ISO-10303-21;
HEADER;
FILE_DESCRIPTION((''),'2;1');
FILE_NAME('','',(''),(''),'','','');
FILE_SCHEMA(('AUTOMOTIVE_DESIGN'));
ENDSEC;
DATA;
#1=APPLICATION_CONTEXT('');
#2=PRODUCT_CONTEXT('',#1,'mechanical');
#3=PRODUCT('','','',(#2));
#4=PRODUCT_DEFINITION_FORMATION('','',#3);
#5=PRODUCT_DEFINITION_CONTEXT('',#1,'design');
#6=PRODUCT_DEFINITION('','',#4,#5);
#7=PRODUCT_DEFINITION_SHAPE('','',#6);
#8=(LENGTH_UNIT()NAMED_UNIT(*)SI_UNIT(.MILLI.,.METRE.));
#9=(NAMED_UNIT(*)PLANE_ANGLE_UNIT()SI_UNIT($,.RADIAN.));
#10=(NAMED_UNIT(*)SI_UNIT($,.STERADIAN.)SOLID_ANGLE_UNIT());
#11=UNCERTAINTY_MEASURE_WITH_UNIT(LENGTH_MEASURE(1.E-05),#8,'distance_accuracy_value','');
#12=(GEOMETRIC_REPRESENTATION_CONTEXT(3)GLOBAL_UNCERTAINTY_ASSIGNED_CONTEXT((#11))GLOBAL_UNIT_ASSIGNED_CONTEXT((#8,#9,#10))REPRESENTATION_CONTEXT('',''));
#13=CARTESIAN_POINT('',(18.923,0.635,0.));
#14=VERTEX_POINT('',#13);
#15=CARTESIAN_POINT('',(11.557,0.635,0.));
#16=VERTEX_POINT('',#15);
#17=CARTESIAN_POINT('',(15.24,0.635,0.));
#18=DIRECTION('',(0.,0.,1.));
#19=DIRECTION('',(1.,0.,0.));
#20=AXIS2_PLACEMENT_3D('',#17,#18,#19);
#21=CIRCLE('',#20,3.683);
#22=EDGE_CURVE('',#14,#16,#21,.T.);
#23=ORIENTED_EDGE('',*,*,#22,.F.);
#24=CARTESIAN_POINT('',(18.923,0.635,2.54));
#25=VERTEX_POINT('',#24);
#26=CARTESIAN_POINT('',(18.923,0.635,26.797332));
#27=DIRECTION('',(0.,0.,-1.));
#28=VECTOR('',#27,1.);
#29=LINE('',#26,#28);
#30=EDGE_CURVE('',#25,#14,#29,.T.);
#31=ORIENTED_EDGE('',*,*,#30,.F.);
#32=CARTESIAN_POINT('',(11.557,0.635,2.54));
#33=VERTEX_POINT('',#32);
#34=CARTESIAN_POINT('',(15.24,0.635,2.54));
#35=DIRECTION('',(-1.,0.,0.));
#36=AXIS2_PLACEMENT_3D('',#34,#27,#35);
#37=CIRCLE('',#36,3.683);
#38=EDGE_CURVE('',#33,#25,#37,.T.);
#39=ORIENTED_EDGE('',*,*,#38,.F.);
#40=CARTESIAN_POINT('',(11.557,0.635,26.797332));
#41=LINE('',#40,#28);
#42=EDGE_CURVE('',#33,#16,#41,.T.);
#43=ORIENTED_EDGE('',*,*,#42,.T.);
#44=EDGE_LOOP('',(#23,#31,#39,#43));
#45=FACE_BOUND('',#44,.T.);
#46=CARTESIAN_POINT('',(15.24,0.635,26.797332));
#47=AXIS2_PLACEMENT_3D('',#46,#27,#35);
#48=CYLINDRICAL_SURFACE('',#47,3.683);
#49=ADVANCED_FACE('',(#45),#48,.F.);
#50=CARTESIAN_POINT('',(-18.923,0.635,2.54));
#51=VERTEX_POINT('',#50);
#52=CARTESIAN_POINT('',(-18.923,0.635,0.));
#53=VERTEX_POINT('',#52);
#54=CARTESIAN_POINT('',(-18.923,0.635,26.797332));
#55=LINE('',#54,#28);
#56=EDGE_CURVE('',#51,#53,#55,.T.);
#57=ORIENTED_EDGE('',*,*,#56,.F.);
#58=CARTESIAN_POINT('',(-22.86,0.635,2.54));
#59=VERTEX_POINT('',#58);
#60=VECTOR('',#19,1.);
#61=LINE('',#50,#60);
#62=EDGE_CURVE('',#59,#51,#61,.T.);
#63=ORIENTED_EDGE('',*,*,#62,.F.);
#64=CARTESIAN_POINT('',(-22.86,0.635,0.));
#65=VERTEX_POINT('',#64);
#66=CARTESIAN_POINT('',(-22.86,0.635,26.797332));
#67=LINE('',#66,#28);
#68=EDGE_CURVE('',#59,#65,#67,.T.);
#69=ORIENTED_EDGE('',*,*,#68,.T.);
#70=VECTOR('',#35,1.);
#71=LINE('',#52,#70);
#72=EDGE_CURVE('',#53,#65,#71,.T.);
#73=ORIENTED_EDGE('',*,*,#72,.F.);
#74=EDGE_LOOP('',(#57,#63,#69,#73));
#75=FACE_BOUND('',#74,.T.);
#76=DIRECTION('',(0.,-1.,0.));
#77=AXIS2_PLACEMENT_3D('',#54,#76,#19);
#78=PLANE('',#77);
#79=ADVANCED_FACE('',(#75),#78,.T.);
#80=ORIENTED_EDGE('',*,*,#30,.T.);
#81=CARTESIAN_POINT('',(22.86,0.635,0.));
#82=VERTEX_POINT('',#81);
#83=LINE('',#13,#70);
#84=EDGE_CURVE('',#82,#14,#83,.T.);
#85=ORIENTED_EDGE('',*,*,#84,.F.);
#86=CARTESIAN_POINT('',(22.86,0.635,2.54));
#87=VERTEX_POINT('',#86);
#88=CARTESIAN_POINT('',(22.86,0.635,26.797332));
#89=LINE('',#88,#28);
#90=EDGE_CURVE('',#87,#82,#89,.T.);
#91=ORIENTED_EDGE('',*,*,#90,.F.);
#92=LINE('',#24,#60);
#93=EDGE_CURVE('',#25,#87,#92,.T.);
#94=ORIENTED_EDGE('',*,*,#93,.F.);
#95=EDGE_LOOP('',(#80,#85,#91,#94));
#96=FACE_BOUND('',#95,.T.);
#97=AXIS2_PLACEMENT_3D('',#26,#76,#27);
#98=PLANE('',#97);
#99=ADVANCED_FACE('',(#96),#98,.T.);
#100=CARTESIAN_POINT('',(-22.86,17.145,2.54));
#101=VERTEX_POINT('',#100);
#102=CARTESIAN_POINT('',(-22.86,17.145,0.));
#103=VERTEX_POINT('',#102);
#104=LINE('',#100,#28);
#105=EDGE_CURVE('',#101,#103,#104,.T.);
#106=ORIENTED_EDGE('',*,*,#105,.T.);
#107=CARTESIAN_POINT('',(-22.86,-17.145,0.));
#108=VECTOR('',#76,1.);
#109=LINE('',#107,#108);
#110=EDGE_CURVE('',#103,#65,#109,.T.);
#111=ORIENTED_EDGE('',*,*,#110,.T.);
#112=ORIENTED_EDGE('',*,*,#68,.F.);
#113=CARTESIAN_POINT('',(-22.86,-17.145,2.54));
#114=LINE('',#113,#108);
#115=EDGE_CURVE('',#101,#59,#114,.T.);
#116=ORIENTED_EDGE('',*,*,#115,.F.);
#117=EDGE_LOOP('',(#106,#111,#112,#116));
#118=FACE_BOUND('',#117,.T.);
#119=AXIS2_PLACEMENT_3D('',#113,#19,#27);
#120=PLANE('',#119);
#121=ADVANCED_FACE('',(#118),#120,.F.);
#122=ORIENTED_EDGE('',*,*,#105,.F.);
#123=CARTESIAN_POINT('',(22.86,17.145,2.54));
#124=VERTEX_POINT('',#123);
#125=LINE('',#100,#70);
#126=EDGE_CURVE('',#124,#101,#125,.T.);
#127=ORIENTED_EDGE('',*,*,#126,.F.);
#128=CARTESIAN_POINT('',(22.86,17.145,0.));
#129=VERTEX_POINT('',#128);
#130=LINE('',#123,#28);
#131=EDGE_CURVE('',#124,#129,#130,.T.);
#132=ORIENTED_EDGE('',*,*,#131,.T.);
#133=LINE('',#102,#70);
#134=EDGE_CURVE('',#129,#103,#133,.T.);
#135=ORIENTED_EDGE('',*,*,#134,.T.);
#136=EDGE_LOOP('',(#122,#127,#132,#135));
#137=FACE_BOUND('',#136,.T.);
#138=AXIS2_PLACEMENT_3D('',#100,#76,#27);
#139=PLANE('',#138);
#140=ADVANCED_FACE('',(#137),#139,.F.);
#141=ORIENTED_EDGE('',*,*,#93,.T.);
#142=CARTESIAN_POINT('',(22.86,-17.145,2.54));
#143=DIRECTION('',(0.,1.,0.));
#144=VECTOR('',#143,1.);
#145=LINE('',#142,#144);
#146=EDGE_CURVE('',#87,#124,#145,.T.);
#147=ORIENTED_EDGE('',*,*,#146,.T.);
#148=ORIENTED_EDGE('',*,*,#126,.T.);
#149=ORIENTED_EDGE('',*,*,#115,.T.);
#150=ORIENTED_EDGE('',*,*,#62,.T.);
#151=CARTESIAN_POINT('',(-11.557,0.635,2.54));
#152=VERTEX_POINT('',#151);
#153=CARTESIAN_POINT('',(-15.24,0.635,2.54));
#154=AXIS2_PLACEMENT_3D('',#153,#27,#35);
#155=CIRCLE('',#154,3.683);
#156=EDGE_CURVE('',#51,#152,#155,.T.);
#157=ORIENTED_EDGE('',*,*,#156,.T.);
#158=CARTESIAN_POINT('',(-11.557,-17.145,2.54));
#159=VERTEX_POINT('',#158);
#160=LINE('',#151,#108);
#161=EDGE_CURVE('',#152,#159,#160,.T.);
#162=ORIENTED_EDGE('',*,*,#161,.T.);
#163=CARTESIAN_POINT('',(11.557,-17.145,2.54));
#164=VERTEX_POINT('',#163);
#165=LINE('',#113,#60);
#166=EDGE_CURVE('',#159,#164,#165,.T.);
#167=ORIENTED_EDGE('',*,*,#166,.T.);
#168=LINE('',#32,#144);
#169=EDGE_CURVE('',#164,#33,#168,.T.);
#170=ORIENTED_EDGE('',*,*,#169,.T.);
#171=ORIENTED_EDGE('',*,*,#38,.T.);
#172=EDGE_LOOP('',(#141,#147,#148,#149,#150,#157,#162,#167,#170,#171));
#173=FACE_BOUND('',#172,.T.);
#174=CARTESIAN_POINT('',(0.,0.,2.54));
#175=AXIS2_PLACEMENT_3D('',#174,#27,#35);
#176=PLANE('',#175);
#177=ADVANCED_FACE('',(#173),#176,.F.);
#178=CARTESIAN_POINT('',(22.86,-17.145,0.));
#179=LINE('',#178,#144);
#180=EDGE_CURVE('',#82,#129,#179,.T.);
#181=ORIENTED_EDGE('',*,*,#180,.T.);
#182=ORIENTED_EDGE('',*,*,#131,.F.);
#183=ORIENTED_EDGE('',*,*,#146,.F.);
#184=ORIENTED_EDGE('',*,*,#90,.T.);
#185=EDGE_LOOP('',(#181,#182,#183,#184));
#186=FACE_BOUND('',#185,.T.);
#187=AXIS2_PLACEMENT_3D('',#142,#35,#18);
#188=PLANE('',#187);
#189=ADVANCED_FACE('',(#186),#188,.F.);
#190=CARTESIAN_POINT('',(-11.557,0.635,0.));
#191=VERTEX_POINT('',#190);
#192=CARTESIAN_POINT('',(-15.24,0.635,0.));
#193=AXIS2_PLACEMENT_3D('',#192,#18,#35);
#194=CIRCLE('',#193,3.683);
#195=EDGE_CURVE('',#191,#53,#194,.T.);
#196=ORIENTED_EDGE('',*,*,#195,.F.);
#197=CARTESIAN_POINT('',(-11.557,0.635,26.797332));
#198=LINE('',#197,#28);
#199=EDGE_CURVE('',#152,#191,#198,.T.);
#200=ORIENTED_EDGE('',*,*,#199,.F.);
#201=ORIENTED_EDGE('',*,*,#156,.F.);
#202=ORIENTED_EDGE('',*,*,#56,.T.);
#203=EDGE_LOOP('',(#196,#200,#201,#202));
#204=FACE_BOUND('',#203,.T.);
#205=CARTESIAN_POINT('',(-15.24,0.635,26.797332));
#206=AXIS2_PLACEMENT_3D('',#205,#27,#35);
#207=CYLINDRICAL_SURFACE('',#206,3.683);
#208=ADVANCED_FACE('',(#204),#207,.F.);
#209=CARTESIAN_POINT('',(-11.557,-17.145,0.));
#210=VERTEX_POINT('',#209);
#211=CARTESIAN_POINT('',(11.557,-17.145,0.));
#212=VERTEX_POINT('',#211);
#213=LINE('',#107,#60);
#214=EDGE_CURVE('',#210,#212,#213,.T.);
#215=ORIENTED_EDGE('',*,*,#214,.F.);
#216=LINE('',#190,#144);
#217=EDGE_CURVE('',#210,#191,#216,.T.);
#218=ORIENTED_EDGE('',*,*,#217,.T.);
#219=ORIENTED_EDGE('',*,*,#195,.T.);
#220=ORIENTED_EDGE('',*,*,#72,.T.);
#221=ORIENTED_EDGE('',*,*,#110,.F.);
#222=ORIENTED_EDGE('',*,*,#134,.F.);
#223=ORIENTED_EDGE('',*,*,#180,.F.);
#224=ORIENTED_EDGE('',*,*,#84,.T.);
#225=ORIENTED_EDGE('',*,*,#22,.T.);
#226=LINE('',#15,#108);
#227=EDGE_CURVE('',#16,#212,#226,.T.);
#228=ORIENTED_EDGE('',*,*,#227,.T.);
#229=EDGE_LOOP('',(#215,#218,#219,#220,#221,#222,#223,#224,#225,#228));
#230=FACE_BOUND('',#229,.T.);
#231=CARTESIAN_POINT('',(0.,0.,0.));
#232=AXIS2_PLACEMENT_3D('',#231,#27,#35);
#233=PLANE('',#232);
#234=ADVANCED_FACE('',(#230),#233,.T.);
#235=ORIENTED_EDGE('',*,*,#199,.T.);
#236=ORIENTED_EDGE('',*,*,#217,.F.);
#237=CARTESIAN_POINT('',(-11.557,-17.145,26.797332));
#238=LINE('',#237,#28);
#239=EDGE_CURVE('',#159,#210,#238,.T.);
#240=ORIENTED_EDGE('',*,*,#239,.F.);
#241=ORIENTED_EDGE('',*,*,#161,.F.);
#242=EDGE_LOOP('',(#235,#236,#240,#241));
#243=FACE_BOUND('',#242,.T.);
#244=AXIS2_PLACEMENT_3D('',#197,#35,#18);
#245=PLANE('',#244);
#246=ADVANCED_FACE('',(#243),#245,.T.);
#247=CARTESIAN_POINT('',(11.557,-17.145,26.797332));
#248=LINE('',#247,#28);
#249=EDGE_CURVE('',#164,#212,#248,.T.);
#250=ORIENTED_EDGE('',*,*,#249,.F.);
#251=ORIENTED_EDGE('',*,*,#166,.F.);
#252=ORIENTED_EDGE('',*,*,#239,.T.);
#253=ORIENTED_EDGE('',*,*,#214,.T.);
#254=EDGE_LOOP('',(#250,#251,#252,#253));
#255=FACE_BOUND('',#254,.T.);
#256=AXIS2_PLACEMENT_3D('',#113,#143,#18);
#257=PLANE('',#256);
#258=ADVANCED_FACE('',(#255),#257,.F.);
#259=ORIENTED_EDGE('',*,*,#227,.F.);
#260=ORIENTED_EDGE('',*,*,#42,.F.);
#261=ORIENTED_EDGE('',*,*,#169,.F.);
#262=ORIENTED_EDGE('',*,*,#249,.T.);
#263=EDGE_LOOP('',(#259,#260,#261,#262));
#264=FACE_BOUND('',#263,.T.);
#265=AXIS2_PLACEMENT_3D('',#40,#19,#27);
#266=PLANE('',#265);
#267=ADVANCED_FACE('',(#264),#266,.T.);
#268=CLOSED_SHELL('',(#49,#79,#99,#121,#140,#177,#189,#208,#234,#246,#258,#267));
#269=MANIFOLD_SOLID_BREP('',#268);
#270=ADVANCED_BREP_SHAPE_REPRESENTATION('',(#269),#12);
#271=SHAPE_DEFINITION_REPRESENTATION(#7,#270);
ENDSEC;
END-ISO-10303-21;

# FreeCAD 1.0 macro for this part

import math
import FreeCAD as App
import Part
import Sketcher

V = App.Vector
Q = App.Units.Quantity


def add_polygon(sketch, points):
    """Adds a closed chain of lines whose ends are joined by coincident constraints."""
    first, n = sketch.GeometryCount, len(points)
    for a, b in zip(points, points[1:] + points[:1]):
        sketch.addGeometry(Part.LineSegment(App.Vector(*a, 0), App.Vector(*b, 0)), False)
    for i in range(n):
        sketch.addConstraint(Sketcher.Constraint("Coincident", first + i, 2, first + (i + 1) % n, 1))

doc = App.newDocument("Part")
body = doc.addObject("PartDesign::Body", "Body")

# Sketch on XY plane
sketch1 = body.newObject("Sketcher::SketchObject", "Sketch")
sketch1.AttachmentSupport = (doc.getObject("XY_Plane"), [""])
sketch1.MapMode = "FlatFace"
add_polygon(sketch1, [(-22.86, 17.145), (-22.86, -17.145), (22.86, -17.145), (22.86, 17.145)])  # lines 0-3
sketch1.addGeometry(Part.Circle(V(-15.24, 0.635, 0), V(0, 0, 1), 3.175), False)  # 4
sketch1.addGeometry(Part.Circle(V(15.24, 0.635, 0), V(0, 0, 1), 3.175), False)  # 5
sketch1.addConstraint(Sketcher.Constraint("Vertical", 0))
sketch1.addConstraint(Sketcher.Constraint("Horizontal", 1))
sketch1.addConstraint(Sketcher.Constraint("Vertical", 2))
sketch1.addConstraint(Sketcher.Constraint("Horizontal", 3))
sketch1.addConstraint(Sketcher.Constraint("Equal", 4, 5))
sketch1.addConstraint(Sketcher.Constraint("Symmetric", 0, 2, 2, 2, -1, 1))
sketch1.addConstraint(Sketcher.Constraint("Symmetric", 4, 3, 5, 3, -2))
sketch1.addConstraint(Sketcher.Constraint("Diameter", 4, Q("0.25 in")))
sketch1.addConstraint(Sketcher.Constraint("DistanceX", 1, 1, 1, 2, Q("1.8 in")))
sketch1.addConstraint(Sketcher.Constraint("DistanceY", 0, 2, 0, 1, Q("1.35 in")))
sketch1.addConstraint(Sketcher.Constraint("DistanceX", 4, 3, -1, 1, Q("0.6 in")))
sketch1.addConstraint(Sketcher.Constraint("DistanceY", 0, 2, 4, 3, Q("0.7 in")))
pad1 = body.newObject("PartDesign::Pad", "Pad")
pad1.Profile = sketch1
pad1.Length = Q("0.1 in")

# Sketch on XY plane
sketch2 = body.newObject("Sketcher::SketchObject", "Sketch001")
sketch2.AttachmentSupport = (doc.getObject("XY_Plane"), [""])
sketch2.MapMode = "FlatFace"
sketch2.addGeometry(Part.LineSegment(V(11.557, 0.635, 0), V(11.557, -17.145, 0)), False)
sketch2.addGeometry(Part.LineSegment(V(11.557, -17.145, 0), V(22.86, -17.145, 0)), False)
sketch2.addGeometry(Part.LineSegment(V(22.86, -17.145, 0), V(22.86, 0.635, 0)), False)
sketch2.addGeometry(Part.LineSegment(V(22.86, 0.635, 0), V(18.923, 0.635, 0)), False)
sketch2.addGeometry(Part.ArcOfCircle(Part.Circle(V(15.24, 0.635, 0), V(0, 0, 1), 3.683), math.radians(0), math.radians(180)), False)
sketch2.addGeometry(Part.LineSegment(V(-11.557, -17.145, 0), V(-11.557, 0.635, 0)), False)
sketch2.addGeometry(Part.ArcOfCircle(Part.Circle(V(-15.24, 0.635, 0), V(0, 0, 1), 3.683), math.radians(0), math.radians(180)), False)
sketch2.addGeometry(Part.LineSegment(V(-18.923, 0.635, 0), V(-22.86, 0.635, 0)), False)
sketch2.addGeometry(Part.LineSegment(V(-22.86, 0.635, 0), V(-22.86, -17.145, 0)), False)
sketch2.addGeometry(Part.LineSegment(V(-22.86, -17.145, 0), V(-11.557, -17.145, 0)), False)
sketch2.addConstraint(Sketcher.Constraint("Coincident", 0, 2, 1, 1))
sketch2.addConstraint(Sketcher.Constraint("Coincident", 1, 2, 2, 1))
sketch2.addConstraint(Sketcher.Constraint("Coincident", 2, 2, 3, 1))
sketch2.addConstraint(Sketcher.Constraint("Coincident", 3, 2, 4, 1))
sketch2.addConstraint(Sketcher.Constraint("Tangent", 4, 2, 0, 1))
sketch2.addConstraint(Sketcher.Constraint("Tangent", 5, 2, 6, 1))
sketch2.addConstraint(Sketcher.Constraint("Coincident", 6, 2, 7, 1))
sketch2.addConstraint(Sketcher.Constraint("Coincident", 7, 2, 8, 1))
sketch2.addConstraint(Sketcher.Constraint("Coincident", 8, 2, 9, 1))
sketch2.addConstraint(Sketcher.Constraint("Coincident", 9, 2, 5, 1))
sketch2.addConstraint(Sketcher.Constraint("Vertical", 0))
sketch2.addConstraint(Sketcher.Constraint("Horizontal", 1))
sketch2.addConstraint(Sketcher.Constraint("Vertical", 2))
sketch2.addConstraint(Sketcher.Constraint("Horizontal", 3))
sketch2.addConstraint(Sketcher.Constraint("Vertical", 5))
sketch2.addConstraint(Sketcher.Constraint("Horizontal", 7))
sketch2.addConstraint(Sketcher.Constraint("Vertical", 8))
sketch2.addConstraint(Sketcher.Constraint("Horizontal", 9))
sketch2.addConstraint(Sketcher.Constraint("Equal", 4, 6))
sketch2.addConstraint(Sketcher.Constraint("Symmetric", 4, 3, 6, 3, -2))
sketch2.addConstraint(Sketcher.Constraint("Symmetric", 2, 2, 7, 2, -2))
sketch2.addConstraint(Sketcher.Constraint("Horizontal", 6, 3, 2, 2))
sketch2.addConstraint(Sketcher.Constraint("Horizontal", 1, 2, 8, 2))
sketch2.addConstraint(Sketcher.Constraint("DistanceY", 0, 2, 0, 1, Q("0.7 in")))
sketch2.addConstraint(Sketcher.Constraint("Radius", 4, Q("0.145 in")))
sketch2.addConstraint(Sketcher.Constraint("DistanceX", -1, 1, 4, 3, Q("0.6 in")))
sketch2.addConstraint(Sketcher.Constraint("DistanceX", -1, 1, 1, 2, Q("0.9 in")))
sketch2.addConstraint(Sketcher.Constraint("DistanceY", -1, 1, 4, 3, Q("0.025 in")))
pocket1 = body.newObject("PartDesign::Pocket", "Pocket")
pocket1.Profile = sketch2
pocket1.Length = Q("0.1 in")
pocket1.Reversed = True

doc.recompute()
